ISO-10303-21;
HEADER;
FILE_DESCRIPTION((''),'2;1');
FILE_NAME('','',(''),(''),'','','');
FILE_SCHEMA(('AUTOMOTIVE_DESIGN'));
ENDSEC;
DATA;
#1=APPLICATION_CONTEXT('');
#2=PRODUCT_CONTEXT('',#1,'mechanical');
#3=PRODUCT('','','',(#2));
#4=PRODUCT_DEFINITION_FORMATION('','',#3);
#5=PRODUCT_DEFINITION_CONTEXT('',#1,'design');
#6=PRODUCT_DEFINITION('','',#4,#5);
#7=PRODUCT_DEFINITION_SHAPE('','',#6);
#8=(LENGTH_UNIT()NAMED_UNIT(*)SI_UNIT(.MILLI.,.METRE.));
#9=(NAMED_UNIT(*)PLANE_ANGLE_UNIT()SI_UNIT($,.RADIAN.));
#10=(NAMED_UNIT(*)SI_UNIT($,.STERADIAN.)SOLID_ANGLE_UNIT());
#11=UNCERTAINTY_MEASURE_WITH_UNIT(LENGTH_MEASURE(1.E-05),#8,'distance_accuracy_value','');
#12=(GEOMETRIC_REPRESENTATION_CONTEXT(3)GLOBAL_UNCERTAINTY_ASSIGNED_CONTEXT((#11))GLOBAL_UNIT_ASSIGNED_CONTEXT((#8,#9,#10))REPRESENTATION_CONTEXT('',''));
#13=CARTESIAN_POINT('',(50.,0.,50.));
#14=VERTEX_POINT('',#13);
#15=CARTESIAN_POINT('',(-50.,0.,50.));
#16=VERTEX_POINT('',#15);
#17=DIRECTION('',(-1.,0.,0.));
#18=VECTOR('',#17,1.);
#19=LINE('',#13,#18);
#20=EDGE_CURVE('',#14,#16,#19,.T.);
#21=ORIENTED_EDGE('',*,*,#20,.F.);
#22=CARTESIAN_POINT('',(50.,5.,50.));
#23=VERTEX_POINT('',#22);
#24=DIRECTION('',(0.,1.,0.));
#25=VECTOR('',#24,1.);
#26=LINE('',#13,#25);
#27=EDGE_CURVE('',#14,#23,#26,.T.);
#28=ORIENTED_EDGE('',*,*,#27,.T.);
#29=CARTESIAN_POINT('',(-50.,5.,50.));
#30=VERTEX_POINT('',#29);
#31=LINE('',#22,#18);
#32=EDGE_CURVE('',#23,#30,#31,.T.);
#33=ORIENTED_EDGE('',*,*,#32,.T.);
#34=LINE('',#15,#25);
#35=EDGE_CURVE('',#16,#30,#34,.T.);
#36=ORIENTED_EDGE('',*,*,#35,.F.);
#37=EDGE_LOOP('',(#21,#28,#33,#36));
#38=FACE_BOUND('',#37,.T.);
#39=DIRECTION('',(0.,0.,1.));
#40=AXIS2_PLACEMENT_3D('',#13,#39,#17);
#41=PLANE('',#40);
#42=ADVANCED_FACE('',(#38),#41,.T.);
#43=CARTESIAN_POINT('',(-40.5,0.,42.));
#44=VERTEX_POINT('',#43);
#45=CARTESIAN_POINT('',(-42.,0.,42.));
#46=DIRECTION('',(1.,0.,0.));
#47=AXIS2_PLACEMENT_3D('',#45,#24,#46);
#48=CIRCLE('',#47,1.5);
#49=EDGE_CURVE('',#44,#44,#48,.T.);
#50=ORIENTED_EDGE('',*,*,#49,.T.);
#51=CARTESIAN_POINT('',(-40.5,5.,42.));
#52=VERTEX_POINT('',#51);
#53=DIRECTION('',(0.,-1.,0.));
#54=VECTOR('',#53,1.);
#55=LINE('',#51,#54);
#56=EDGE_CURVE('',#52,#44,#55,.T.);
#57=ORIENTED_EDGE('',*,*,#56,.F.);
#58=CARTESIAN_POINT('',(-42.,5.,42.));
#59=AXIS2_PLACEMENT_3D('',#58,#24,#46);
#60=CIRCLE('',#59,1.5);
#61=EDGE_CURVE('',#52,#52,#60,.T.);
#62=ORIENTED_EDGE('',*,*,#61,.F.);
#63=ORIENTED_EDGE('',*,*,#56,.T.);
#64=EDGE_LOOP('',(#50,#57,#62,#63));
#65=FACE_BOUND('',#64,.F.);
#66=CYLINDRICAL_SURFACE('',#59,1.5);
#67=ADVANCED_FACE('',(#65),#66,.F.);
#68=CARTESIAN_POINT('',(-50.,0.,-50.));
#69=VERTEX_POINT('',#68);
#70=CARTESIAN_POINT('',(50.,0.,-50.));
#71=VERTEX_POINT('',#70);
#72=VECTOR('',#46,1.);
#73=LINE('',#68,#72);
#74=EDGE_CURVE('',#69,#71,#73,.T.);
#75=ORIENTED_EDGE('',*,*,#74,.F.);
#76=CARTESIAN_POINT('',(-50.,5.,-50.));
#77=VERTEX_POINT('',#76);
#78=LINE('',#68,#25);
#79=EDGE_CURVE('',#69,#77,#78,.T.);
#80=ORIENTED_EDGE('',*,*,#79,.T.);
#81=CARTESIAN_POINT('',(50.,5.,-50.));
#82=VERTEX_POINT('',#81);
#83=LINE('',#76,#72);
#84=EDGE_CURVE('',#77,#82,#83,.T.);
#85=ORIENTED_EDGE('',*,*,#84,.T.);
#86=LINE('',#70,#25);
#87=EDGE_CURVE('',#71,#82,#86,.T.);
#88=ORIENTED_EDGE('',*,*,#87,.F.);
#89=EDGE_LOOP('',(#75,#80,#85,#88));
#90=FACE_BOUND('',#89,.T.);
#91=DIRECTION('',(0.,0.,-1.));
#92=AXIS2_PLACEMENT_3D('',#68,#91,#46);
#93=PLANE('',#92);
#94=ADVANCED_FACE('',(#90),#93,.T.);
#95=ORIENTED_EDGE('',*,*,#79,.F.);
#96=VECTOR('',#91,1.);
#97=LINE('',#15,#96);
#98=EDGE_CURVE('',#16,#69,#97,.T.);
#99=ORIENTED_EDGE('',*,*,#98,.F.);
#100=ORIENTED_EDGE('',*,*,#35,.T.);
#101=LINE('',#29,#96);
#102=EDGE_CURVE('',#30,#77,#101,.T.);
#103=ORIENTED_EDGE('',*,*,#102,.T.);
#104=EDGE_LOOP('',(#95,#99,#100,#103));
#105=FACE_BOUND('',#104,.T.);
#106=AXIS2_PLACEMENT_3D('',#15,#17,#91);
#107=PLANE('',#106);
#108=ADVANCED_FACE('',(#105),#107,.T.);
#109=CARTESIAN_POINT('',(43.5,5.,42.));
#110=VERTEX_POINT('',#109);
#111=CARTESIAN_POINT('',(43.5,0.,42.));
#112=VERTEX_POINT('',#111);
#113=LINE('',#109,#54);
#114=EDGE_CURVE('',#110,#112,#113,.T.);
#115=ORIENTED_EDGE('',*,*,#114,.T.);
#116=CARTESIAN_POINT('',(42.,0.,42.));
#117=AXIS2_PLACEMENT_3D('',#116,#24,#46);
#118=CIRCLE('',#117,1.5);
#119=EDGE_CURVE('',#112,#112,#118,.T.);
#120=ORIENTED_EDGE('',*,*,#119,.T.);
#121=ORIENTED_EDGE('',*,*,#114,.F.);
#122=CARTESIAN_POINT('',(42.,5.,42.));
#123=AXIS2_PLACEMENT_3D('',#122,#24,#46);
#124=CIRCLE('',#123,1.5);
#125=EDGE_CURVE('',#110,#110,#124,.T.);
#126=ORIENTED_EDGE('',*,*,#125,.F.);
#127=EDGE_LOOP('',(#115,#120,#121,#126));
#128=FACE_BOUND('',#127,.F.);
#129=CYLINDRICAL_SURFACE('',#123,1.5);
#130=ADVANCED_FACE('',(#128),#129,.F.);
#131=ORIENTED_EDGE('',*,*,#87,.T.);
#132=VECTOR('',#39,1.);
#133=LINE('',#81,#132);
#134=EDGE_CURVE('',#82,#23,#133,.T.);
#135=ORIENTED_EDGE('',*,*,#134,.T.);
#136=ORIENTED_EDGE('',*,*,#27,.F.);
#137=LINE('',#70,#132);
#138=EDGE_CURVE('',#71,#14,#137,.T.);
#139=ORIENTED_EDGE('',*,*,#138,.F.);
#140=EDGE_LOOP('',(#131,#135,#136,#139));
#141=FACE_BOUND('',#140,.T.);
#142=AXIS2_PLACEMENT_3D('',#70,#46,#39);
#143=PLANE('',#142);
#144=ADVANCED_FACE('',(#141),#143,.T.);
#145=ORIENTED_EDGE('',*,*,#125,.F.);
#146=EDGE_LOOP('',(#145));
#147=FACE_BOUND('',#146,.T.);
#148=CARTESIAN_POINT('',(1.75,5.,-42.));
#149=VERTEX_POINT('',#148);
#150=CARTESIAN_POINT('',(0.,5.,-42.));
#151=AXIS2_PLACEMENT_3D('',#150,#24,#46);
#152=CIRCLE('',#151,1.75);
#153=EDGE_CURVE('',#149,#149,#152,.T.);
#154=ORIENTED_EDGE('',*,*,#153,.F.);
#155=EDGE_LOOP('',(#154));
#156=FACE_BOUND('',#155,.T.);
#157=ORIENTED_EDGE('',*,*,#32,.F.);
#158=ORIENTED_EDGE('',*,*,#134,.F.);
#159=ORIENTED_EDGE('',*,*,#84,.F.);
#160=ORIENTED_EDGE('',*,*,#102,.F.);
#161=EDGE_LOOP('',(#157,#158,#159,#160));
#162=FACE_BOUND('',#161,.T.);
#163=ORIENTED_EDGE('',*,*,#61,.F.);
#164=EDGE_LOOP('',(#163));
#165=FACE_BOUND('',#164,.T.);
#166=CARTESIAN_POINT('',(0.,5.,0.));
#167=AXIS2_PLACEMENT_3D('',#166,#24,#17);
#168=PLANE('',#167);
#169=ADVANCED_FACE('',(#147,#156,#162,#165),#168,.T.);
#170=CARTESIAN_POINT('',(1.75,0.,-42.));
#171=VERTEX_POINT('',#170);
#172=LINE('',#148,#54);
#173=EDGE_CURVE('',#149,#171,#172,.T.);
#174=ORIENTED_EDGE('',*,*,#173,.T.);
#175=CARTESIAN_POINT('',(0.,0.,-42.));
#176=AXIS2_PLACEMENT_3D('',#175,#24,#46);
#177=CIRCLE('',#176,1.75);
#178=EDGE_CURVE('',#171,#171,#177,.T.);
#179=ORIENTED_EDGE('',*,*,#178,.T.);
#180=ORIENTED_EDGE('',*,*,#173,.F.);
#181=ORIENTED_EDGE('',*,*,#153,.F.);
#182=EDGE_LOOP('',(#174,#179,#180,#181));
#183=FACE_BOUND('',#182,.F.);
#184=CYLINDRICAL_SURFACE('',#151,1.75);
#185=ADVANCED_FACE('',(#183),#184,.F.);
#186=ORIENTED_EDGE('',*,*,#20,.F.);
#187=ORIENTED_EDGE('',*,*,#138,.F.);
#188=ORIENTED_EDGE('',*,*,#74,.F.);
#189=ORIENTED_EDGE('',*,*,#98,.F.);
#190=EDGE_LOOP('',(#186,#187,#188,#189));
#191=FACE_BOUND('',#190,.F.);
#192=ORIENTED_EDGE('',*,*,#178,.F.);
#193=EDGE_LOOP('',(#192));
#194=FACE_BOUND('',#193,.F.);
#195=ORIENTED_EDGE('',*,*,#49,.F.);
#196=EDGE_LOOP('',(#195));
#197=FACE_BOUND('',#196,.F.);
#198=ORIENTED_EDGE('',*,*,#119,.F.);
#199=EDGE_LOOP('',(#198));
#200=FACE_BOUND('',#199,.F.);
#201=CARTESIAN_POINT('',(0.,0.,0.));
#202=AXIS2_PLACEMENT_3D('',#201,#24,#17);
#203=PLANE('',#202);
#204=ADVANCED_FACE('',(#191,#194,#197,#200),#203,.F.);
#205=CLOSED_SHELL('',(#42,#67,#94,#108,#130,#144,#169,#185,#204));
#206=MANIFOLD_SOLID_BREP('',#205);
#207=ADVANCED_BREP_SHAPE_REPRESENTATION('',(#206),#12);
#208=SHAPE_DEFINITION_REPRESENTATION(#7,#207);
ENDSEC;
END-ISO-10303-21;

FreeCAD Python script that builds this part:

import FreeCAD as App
import Part
import Sketcher
from FreeCAD import Vector
Q = App.Units.Quantity

doc = App.newDocument("Part")
body = doc.addObject("PartDesign::Body", "Body")

sketch1 = body.newObject("Sketcher::SketchObject", "Sketch")
sketch1.AttachmentSupport = (doc.getObject("XZ_Plane"), [""])
sketch1.MapMode = "FlatFace"
sketch1.addGeometry([
    Part.LineSegment(Vector(50, -50, 0), Vector(-50, -50, 0)),
    Part.LineSegment(Vector(-50, -50, 0), Vector(-50, 50, 0)),
    Part.LineSegment(Vector(-50, 50, 0), Vector(50, 50, 0)),
    Part.LineSegment(Vector(50, 50, 0), Vector(50, -50, 0)),
], False)
sketch1.addConstraint([
    Sketcher.Constraint("Coincident", 0, 2, 1, 1),
    Sketcher.Constraint("Coincident", 1, 2, 2, 1),
    Sketcher.Constraint("Coincident", 2, 2, 3, 1),
    Sketcher.Constraint("Coincident", 3, 2, 0, 1),
    Sketcher.Constraint("Horizontal", 0),
    Sketcher.Constraint("Vertical", 1),
    Sketcher.Constraint("Horizontal", 2),
    Sketcher.Constraint("Vertical", 3),
    Sketcher.Constraint("Symmetric", 0, 2, 2, 2, -1, 1),
    Sketcher.Constraint("Equal", 2, 1),
    Sketcher.Constraint("DistanceX", 0, 2, 0, 1, Q("100 mm")),
])
pad1 = body.newObject("PartDesign::Pad", "Pad")
pad1.Profile = sketch1
pad1.Length = 5
pad1.Reversed = True

sketch2 = body.newObject("Sketcher::SketchObject", "Sketch001")
sketch2.AttachmentSupport = (doc.getObject("XZ_Plane"), [""])
sketch2.MapMode = "FlatFace"
sketch2.AttachmentOffset = App.Placement(Vector(0, 0, -5), App.Rotation())
sketch2.addGeometry([
    Part.Circle(Vector(42, 42, 0), Vector(0, 0, 1), 1.5),
    Part.Circle(Vector(-42, 42, 0), Vector(0, 0, 1), 1.5),
    Part.Circle(Vector(0, -42, 0), Vector(0, 0, 1), 1.8),
], False)
sketch2.addConstraint([
    Sketcher.Constraint("Equal", 0, 1),
    Sketcher.Constraint("Symmetric", 0, 3, 1, 3, -2),
    Sketcher.Constraint("PointOnObject", 2, 3, -2),
    Sketcher.Constraint("Diameter", 0, Q("3 mm")),
    Sketcher.Constraint("Diameter", 2, Q("3.5 mm")),
    Sketcher.Constraint("DistanceX", -1, 1, 0, 3, Q("42 mm")),
    Sketcher.Constraint("DistanceY", -1, 1, 0, 3, Q("42 mm")),
    Sketcher.Constraint("DistanceY", 2, 3, -1, 1, Q("42 mm")),
])
pocket1 = body.newObject("PartDesign::Pocket", "Pocket")
pocket1.Profile = sketch2
pocket1.Length = 5
pocket1.Reversed = True

doc.recompute()
